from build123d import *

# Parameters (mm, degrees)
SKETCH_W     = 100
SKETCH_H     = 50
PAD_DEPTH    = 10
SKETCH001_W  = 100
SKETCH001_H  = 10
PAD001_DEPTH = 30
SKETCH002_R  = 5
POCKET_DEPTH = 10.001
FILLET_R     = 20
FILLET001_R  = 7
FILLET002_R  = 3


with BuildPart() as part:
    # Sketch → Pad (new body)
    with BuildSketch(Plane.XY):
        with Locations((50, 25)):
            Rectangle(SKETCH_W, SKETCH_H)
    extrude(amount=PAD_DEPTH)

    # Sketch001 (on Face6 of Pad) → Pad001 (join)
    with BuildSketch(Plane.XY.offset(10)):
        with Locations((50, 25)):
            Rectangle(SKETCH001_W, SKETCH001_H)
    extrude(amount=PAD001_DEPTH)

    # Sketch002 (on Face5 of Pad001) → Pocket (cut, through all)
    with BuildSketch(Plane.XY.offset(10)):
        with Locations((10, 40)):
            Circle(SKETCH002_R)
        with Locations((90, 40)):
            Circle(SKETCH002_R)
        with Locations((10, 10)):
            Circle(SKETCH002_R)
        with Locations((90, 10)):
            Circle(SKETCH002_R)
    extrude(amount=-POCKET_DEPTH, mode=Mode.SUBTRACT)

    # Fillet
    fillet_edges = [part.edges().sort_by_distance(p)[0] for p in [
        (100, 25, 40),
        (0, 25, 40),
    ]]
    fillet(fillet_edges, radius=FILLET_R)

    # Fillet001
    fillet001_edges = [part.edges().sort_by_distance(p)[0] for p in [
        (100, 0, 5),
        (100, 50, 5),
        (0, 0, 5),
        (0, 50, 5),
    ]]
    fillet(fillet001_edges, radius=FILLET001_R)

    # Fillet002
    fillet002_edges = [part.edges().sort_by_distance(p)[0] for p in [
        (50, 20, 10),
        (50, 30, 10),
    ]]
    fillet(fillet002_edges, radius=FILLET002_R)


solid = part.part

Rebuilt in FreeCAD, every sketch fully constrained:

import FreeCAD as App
import Part
import Sketcher
Q = App.Units.Quantity


def edges_at(feature, points):
    """Names of the edges that pass closest to the given points."""
    edges = feature.Shape.Edges
    near = lambda p: min(range(len(edges)), key=lambda i: edges[i].distToShape(Part.Vertex(*p))[0])
    return sorted({f"Edge{near(p) + 1}" for p in points})

doc = App.newDocument("Part")
body = doc.addObject("PartDesign::Body", "Body")

# Sketch on XY plane
sketch1 = body.newObject("Sketcher::SketchObject", "Sketch")
sketch1.AttachmentSupport = (doc.getObject("XY_Plane"), [""])
sketch1.MapMode = "FlatFace"
sketch1.addGeometry([
    Part.LineSegment(App.Vector(0, 50, 0), App.Vector(0, 0, 0)),
    Part.LineSegment(App.Vector(0, 0, 0), App.Vector(100, 0, 0)),
    Part.LineSegment(App.Vector(100, 0, 0), App.Vector(100, 50, 0)),
    Part.LineSegment(App.Vector(100, 50, 0), App.Vector(0, 50, 0)),
], False)
sketch1.addConstraint([
    Sketcher.Constraint("Coincident", 0, 2, 1, 1),
    Sketcher.Constraint("Coincident", 1, 2, 2, 1),
    Sketcher.Constraint("Coincident", 2, 2, 3, 1),
    Sketcher.Constraint("Coincident", 3, 2, 0, 1),
    Sketcher.Constraint("Vertical", 0),
    Sketcher.Constraint("Horizontal", 1),
    Sketcher.Constraint("Vertical", 2),
    Sketcher.Constraint("Horizontal", 3),
    Sketcher.Constraint("Coincident", 0, 2, -1, 1),
    Sketcher.Constraint("DistanceX", 1, 1, 1, 2, Q("100 mm")),
    Sketcher.Constraint("DistanceY", 0, 2, 0, 1, Q("50 mm")),
])
pad1 = body.newObject("PartDesign::Pad", "Pad")
pad1.Profile = sketch1
pad1.Length = 10

# Sketch on XY plane
sketch2 = body.newObject("Sketcher::SketchObject", "Sketch001")
sketch2.AttachmentSupport = (doc.getObject("XY_Plane"), [""])
sketch2.MapMode = "FlatFace"
sketch2.AttachmentOffset = App.Placement(App.Vector(0, 0, 10), App.Rotation())
sketch2.addGeometry([
    Part.LineSegment(App.Vector(0, 30, 0), App.Vector(0, 20, 0)),
    Part.LineSegment(App.Vector(0, 20, 0), App.Vector(100, 20, 0)),
    Part.LineSegment(App.Vector(100, 20, 0), App.Vector(100, 30, 0)),
    Part.LineSegment(App.Vector(100, 30, 0), App.Vector(0, 30, 0)),
], False)
sketch2.addConstraint([
    Sketcher.Constraint("Coincident", 0, 2, 1, 1),
    Sketcher.Constraint("Coincident", 1, 2, 2, 1),
    Sketcher.Constraint("Coincident", 2, 2, 3, 1),
    Sketcher.Constraint("Coincident", 3, 2, 0, 1),
    Sketcher.Constraint("Vertical", 0),
    Sketcher.Constraint("Horizontal", 1),
    Sketcher.Constraint("Vertical", 2),
    Sketcher.Constraint("Horizontal", 3),
    Sketcher.Constraint("PointOnObject", 0, 2, -2),
    Sketcher.Constraint("DistanceX", 1, 1, 1, 2, Q("100 mm")),
    Sketcher.Constraint("DistanceY", 0, 2, 0, 1, Q("10 mm")),
    Sketcher.Constraint("DistanceY", -1, 1, 0, 2, Q("20 mm")),
])
pad2 = body.newObject("PartDesign::Pad", "Pad001")
pad2.Profile = sketch2
pad2.Length = 30

# Sketch on XY plane
sketch3 = body.newObject("Sketcher::SketchObject", "Sketch002")
sketch3.AttachmentSupport = (doc.getObject("XY_Plane"), [""])
sketch3.MapMode = "FlatFace"
sketch3.AttachmentOffset = App.Placement(App.Vector(0, 0, 10), App.Rotation())
sketch3.addGeometry([
    Part.Circle(App.Vector(10, 40, 0), App.Vector(0, 0, 1), 5),
    Part.Circle(App.Vector(90, 40, 0), App.Vector(0, 0, 1), 5),
    Part.Circle(App.Vector(10, 10, 0), App.Vector(0, 0, 1), 5),
    Part.Circle(App.Vector(90, 10, 0), App.Vector(0, 0, 1), 5),
], False)
sketch3.addConstraint([
    Sketcher.Constraint("Equal", 0, 1),
    Sketcher.Constraint("Equal", 1, 2),
    Sketcher.Constraint("Equal", 2, 3),
    Sketcher.Constraint("Horizontal", 0, 3, 1, 3),
    Sketcher.Constraint("Horizontal", 2, 3, 3, 3),
    Sketcher.Constraint("Vertical", 0, 3, 2, 3),
    Sketcher.Constraint("Vertical", 1, 3, 3, 3),
    Sketcher.Constraint("Diameter", 0, Q("10 mm")),
    Sketcher.Constraint("DistanceX", -1, 1, 0, 3, Q("10 mm")),
    Sketcher.Constraint("DistanceY", -1, 1, 0, 3, Q("40 mm")),
    Sketcher.Constraint("DistanceX", -1, 1, 1, 3, Q("90 mm")),
    Sketcher.Constraint("DistanceY", -1, 1, 2, 3, Q("10 mm")),
])
pocket1 = body.newObject("PartDesign::Pocket", "Pocket")
pocket1.Profile = sketch3
pocket1.Type = "ThroughAll"
doc.recompute()

fillet = body.newObject("PartDesign::Fillet", "Fillet")
fillet.Base = (pocket1, edges_at(pocket1, [(100, 25, 40), (0, 25, 40)]))
fillet.Radius = 20
doc.recompute()

fillet2 = body.newObject("PartDesign::Fillet", "Fillet001")
fillet2.Base = (fillet, edges_at(fillet, [
    (100, 0, 5),
    (100, 50, 5),
    (0, 0, 5),
    (0, 50, 5),
]))
fillet2.Radius = 7
doc.recompute()

fillet3 = body.newObject("PartDesign::Fillet", "Fillet002")
fillet3.Base = (fillet2, edges_at(fillet2, [(50, 20, 10), (50, 30, 10)]))
fillet3.Radius = 3

doc.recompute()
